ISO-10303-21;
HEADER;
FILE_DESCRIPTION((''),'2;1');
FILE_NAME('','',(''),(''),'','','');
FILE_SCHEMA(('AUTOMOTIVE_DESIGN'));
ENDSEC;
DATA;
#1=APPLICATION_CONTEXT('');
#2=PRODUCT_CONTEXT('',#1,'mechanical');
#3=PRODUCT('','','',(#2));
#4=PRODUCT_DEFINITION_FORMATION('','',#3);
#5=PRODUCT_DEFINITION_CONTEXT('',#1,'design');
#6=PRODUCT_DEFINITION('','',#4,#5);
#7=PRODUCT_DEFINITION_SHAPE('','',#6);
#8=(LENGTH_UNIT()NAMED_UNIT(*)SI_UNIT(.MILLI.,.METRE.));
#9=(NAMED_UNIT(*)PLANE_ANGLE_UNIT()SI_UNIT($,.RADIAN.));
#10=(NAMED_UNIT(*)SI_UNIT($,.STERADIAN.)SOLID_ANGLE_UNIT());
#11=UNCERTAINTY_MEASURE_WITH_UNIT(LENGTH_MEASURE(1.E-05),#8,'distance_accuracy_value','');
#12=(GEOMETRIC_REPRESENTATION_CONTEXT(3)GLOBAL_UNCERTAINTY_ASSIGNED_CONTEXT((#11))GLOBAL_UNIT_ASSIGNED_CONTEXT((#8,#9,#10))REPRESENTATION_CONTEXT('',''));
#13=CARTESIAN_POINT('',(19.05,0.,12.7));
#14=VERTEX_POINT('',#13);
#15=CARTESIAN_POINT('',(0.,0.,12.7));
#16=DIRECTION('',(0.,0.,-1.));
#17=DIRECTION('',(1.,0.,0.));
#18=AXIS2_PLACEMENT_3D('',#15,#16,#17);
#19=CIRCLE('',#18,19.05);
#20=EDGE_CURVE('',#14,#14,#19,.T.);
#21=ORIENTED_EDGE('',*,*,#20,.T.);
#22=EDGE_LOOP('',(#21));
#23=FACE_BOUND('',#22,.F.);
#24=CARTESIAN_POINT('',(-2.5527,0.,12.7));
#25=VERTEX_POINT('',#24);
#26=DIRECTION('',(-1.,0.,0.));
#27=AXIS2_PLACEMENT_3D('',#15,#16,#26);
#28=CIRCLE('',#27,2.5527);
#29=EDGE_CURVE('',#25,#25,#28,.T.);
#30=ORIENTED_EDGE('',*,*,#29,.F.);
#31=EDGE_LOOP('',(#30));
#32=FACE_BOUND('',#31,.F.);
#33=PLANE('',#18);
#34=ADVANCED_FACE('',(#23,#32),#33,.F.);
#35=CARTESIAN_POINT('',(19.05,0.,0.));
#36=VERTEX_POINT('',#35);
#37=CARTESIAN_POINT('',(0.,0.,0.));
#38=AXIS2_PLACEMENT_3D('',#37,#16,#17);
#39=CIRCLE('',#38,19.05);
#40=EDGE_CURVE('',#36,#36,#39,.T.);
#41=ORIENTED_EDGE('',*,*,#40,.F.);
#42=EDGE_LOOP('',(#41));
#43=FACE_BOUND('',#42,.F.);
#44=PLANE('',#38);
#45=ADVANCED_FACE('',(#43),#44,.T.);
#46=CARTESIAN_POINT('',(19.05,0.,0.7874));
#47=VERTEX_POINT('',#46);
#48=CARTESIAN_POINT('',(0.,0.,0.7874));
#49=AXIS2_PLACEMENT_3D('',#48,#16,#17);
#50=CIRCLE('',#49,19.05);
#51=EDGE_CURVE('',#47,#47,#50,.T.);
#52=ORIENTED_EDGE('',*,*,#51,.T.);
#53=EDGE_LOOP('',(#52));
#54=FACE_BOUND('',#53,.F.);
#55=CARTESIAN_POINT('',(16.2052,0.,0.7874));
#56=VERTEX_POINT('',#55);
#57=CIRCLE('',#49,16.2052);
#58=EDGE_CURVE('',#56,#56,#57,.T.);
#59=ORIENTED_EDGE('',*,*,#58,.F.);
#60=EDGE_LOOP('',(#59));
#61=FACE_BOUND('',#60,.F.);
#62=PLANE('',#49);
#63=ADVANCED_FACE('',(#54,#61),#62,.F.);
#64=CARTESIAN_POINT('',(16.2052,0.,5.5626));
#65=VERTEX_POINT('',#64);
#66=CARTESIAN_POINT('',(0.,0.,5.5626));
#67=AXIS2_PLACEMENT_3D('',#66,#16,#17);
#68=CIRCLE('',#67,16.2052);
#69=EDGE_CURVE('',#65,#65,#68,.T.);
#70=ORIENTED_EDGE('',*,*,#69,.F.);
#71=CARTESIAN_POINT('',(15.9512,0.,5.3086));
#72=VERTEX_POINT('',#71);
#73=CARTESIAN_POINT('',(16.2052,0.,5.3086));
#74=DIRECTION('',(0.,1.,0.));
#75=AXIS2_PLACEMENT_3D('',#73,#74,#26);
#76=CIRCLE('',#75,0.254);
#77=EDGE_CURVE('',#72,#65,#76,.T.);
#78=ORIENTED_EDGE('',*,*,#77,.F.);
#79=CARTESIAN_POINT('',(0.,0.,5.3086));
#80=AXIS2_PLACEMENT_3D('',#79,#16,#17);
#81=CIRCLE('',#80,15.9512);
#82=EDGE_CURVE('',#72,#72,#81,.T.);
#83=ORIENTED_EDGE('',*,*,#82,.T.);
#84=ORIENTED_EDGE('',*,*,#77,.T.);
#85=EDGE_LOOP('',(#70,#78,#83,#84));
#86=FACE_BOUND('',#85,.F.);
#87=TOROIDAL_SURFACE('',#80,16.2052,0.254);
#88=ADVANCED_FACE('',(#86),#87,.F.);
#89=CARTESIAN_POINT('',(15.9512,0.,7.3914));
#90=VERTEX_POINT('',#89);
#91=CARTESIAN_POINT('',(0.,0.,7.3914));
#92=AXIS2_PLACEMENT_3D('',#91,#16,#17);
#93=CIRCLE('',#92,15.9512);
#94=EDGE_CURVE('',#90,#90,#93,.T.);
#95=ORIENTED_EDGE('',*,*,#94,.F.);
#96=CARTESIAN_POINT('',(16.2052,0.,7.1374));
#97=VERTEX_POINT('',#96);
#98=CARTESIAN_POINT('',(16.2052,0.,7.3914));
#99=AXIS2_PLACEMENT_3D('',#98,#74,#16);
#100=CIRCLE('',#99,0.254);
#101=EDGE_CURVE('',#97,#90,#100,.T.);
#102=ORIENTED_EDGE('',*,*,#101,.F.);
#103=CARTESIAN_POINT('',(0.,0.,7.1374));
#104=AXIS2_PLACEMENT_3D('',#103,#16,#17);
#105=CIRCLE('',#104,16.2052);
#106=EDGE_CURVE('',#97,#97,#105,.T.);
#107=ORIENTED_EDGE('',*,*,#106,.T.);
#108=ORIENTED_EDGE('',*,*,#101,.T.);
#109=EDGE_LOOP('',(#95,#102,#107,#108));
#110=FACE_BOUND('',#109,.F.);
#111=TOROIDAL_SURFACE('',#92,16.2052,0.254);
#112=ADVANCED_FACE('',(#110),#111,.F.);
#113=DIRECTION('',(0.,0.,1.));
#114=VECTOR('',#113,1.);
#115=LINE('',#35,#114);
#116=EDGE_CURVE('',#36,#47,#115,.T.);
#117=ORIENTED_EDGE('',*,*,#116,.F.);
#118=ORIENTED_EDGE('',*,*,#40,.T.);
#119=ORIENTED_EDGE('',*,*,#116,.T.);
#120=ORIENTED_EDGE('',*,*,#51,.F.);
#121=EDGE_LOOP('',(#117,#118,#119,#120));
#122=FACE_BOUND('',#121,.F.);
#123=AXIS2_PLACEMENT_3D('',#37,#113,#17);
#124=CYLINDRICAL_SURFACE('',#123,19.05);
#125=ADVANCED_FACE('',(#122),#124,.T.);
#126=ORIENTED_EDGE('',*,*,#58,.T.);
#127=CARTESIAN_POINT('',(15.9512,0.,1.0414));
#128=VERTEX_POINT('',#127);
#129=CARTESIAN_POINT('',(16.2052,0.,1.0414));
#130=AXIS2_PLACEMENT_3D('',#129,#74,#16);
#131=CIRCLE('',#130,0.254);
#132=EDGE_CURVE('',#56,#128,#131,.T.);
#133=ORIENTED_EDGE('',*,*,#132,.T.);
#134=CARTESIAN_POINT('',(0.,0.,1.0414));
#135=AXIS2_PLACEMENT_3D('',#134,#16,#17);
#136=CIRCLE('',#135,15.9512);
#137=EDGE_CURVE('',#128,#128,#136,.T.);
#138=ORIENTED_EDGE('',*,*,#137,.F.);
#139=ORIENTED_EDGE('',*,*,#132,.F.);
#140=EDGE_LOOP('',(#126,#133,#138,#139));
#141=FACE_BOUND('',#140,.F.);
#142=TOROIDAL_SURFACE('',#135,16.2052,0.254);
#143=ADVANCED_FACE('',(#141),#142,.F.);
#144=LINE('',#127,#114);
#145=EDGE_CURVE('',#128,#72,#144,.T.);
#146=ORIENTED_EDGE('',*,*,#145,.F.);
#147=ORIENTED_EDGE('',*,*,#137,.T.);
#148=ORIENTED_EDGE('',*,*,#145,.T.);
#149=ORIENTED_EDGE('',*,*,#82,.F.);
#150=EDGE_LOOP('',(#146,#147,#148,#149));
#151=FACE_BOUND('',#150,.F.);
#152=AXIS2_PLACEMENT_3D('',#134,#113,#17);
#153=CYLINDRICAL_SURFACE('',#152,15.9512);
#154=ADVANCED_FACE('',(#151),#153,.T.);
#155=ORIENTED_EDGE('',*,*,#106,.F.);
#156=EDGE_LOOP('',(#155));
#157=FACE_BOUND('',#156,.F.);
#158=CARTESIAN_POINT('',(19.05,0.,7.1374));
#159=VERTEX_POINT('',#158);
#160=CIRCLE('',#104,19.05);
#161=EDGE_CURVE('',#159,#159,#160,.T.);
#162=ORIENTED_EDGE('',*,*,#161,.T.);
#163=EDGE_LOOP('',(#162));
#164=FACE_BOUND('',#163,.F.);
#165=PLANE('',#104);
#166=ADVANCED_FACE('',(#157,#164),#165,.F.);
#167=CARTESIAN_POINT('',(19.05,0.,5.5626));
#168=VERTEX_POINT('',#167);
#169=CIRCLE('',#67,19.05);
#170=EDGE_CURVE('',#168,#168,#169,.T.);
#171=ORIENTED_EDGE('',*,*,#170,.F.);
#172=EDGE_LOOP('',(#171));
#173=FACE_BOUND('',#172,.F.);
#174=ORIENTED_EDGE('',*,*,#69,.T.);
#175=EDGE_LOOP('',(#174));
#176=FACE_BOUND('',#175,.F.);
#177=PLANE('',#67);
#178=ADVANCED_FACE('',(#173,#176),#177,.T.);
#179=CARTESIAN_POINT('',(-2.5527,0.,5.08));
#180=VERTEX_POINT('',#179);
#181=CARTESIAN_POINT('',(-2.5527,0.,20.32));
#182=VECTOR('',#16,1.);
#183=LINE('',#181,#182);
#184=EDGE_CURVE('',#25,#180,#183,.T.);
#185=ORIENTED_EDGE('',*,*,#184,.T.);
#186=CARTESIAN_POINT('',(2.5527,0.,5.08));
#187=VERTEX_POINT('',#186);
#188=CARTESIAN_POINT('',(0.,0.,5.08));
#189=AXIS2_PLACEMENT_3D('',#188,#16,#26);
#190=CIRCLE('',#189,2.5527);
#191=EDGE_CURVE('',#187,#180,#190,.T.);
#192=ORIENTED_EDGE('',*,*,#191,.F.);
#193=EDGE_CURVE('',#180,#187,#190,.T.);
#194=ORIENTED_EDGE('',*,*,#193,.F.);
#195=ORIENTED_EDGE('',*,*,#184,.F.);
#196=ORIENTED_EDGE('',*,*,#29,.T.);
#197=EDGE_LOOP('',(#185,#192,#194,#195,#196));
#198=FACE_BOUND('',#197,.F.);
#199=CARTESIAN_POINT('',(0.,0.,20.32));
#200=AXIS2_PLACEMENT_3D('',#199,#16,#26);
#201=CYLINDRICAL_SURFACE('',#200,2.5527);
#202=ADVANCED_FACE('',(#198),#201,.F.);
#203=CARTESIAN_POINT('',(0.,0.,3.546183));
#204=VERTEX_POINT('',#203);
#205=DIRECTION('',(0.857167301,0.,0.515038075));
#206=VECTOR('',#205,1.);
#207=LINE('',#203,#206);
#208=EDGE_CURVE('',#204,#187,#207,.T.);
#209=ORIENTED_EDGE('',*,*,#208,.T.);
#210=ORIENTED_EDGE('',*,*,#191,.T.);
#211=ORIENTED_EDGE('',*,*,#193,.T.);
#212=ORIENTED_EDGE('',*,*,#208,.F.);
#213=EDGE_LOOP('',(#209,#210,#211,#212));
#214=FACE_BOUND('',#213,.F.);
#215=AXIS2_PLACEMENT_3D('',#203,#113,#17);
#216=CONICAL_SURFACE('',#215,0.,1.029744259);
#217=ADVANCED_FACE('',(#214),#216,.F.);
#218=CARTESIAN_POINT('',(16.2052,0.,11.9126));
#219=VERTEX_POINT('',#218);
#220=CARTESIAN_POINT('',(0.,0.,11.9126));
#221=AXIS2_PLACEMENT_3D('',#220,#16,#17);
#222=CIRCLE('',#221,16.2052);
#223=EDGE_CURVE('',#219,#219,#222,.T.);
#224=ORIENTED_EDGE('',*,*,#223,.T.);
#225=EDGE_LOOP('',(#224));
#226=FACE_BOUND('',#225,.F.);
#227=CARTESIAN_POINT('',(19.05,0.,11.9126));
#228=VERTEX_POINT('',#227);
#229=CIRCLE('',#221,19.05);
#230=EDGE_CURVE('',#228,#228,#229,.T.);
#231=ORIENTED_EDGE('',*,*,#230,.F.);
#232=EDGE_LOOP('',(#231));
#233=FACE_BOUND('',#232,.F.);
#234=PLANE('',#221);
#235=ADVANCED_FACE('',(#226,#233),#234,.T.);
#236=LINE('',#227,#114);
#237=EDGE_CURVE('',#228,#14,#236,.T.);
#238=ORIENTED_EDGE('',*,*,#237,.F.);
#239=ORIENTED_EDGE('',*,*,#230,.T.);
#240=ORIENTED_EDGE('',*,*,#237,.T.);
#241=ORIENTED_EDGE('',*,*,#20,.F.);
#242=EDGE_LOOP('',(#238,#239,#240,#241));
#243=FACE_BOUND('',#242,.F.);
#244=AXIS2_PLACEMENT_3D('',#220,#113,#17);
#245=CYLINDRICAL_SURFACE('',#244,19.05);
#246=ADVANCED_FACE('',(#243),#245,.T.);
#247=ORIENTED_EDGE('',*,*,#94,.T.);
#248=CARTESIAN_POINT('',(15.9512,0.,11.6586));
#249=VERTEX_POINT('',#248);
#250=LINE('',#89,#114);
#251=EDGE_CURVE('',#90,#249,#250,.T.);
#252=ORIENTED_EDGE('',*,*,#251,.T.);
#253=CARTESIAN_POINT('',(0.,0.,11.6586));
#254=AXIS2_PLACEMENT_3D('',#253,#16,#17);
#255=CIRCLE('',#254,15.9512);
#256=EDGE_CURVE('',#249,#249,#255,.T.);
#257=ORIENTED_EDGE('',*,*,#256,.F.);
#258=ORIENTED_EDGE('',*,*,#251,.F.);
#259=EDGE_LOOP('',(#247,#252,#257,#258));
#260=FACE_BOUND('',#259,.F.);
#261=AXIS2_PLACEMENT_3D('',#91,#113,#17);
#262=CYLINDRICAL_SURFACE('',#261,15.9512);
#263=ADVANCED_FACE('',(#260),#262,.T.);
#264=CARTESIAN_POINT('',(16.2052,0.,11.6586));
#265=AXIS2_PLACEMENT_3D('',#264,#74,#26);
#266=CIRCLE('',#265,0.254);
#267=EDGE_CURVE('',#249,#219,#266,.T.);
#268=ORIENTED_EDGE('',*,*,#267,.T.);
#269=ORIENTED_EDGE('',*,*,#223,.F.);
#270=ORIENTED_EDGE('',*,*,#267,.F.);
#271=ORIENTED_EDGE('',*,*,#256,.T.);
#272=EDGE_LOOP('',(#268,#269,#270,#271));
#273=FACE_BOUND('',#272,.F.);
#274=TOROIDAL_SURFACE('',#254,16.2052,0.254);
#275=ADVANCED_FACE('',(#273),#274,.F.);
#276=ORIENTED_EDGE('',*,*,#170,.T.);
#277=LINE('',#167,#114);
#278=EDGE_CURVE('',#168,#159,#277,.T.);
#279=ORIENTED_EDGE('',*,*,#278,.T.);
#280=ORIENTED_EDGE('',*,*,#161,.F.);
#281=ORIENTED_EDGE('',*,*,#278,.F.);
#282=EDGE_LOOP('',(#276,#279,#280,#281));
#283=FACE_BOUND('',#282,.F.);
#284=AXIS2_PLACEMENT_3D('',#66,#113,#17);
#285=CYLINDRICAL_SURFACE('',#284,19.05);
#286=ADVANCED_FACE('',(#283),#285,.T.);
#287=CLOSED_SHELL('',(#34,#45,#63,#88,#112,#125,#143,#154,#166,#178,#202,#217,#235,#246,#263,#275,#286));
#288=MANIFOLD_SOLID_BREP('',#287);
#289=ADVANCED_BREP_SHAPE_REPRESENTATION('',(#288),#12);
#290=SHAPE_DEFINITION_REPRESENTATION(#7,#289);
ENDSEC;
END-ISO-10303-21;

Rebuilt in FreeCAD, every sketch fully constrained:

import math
import FreeCAD as App
import Part
import Sketcher
from FreeCAD import Vector
Q = App.Units.Quantity

doc = App.newDocument("Part")
body = doc.addObject("PartDesign::Body", "Body")

# Sketch on XZ plane
sketch1 = body.newObject("Sketcher::SketchObject", "Sketch")
sketch1.AttachmentSupport = (doc.getObject("XZ_Plane"), [""])
sketch1.MapMode = "FlatFace"
sketch1.addGeometry([
    Part.LineSegment(Vector(19.05, 12.7, 0), Vector(0, 12.7, 0)),  # 0
    Part.LineSegment(Vector(0, 12.7, 0), Vector(0, 0, 0)),  # 1
    Part.LineSegment(Vector(0, 0, 0), Vector(19.05, 0, 0)),  # 2
    Part.LineSegment(Vector(19.05, 0, 0), Vector(19.05, 0.79, 0)),  # 3
    Part.LineSegment(Vector(19.05, 0.79, 0), Vector(16.21, 0.79, 0)),  # 4
    Part.ArcOfCircle(Part.Circle(Vector(16.21, 1.04, 0), Vector(0, 0, 1), 0.25), math.radians(180), math.radians(270)),  # 5
    Part.LineSegment(Vector(15.95, 1.04, 0), Vector(15.95, 5.31, 0)),  # 6
    Part.ArcOfCircle(Part.Circle(Vector(16.21, 5.31, 0), Vector(0, 0, 1), 0.25), math.radians(90), math.radians(180)),  # 7
    Part.LineSegment(Vector(16.21, 5.56, 0), Vector(19.05, 5.56, 0)),  # 8
    Part.LineSegment(Vector(19.05, 5.56, 0), Vector(19.05, 7.14, 0)),  # 9
    Part.LineSegment(Vector(19.05, 7.14, 0), Vector(16.21, 7.14, 0)),  # 10
    Part.ArcOfCircle(Part.Circle(Vector(16.21, 7.39, 0), Vector(0, 0, 1), 0.25), math.radians(180), math.radians(270)),  # 11
    Part.LineSegment(Vector(15.95, 7.39, 0), Vector(15.95, 11.66, 0)),  # 12
    Part.ArcOfCircle(Part.Circle(Vector(16.21, 11.66, 0), Vector(0, 0, 1), 0.25), math.radians(90), math.radians(180)),  # 13
    Part.LineSegment(Vector(16.21, 11.91, 0), Vector(19.05, 11.91, 0)),  # 14
    Part.LineSegment(Vector(19.05, 11.91, 0), Vector(19.05, 12.7, 0)),  # 15
], False)
sketch1.addConstraint([
    Sketcher.Constraint("Coincident", 0, 2, 1, 1),
    Sketcher.Constraint("Coincident", 1, 2, 2, 1),
    Sketcher.Constraint("Coincident", 2, 2, 3, 1),
    Sketcher.Constraint("Coincident", 3, 2, 4, 1),
    Sketcher.Constraint("Tangent", 4, 2, 5, 2),
    Sketcher.Constraint("Tangent", 5, 1, 6, 1),
    Sketcher.Constraint("Tangent", 6, 2, 7, 2),
    Sketcher.Constraint("Tangent", 7, 1, 8, 1),
    Sketcher.Constraint("Coincident", 8, 2, 9, 1),
    Sketcher.Constraint("Coincident", 9, 2, 10, 1),
    Sketcher.Constraint("Tangent", 10, 2, 11, 2),
    Sketcher.Constraint("Tangent", 11, 1, 12, 1),
    Sketcher.Constraint("Tangent", 12, 2, 13, 2),
    Sketcher.Constraint("Tangent", 13, 1, 14, 1),
    Sketcher.Constraint("Coincident", 14, 2, 15, 1),
    Sketcher.Constraint("Coincident", 15, 2, 0, 1),
    Sketcher.Constraint("Horizontal", 0),
    Sketcher.Constraint("Vertical", 1),
    Sketcher.Constraint("Horizontal", 2),
    Sketcher.Constraint("Vertical", 3),
    Sketcher.Constraint("Horizontal", 4),
    Sketcher.Constraint("Vertical", 6),
    Sketcher.Constraint("Horizontal", 8),
    Sketcher.Constraint("Vertical", 9),
    Sketcher.Constraint("Horizontal", 10),
    Sketcher.Constraint("Vertical", 12),
    Sketcher.Constraint("Horizontal", 14),
    Sketcher.Constraint("Vertical", 15),
    Sketcher.Constraint("Coincident", 1, 2, -1, 1),
    Sketcher.Constraint("Equal", 5, 7),
    Sketcher.Constraint("Equal", 7, 11),
    Sketcher.Constraint("Equal", 11, 13),
    Sketcher.Constraint("Vertical", 7, 3, 11, 3),
    Sketcher.Constraint("Vertical", 3, 2, 8, 2),
    Sketcher.Constraint("Vertical", 9, 2, 14, 2),
    Sketcher.Constraint("Equal", 6, 12),
    Sketcher.Constraint("Equal", 3, 15),
    Sketcher.Constraint("Radius", 5, Q("0.01 in")),
    Sketcher.Constraint("DistanceY", 1, 2, 1, 1, Q("0.5 in")),
    Sketcher.Constraint("DistanceX", 0, 2, 0, 1, Q("0.75 in")),
    Sketcher.Constraint("DistanceX", 4, 2, 4, 1, Q("0.112 in")),
    Sketcher.Constraint("DistanceY", 3, 1, 3, 2, Q("0.031 in")),
    Sketcher.Constraint("DistanceY", 6, 1, 6, 2, Q("0.168 in")),
])
revolution = body.newObject("PartDesign::Revolution", "Revolution")
revolution.Profile = sketch1
revolution.ReferenceAxis = (sketch1, ["V_Axis"])
revolution.Angle = 360

# Sketch on XY plane
sketch2 = body.newObject("Sketcher::SketchObject", "Sketch001")
sketch2.AttachmentSupport = (doc.getObject("XY_Plane"), [""])
sketch2.MapMode = "FlatFace"
sketch2.AttachmentOffset = App.Placement(Vector(0, 0, 0.5 * 25.4), App.Rotation())
sketch2.addGeometry(Part.Circle(Vector(0, 0, 0), Vector(0, 0, 1), 2.6), False)
sketch2.addConstraint([
    Sketcher.Constraint("Coincident", 0, 3, -1, 1),
    Sketcher.Constraint("Diameter", 0, Q("0.201 in")),
])
doc.recompute()
hole = body.newObject("PartDesign::Hole", "Hole")
hole.Profile = sketch2
hole.ThreadType = "None"
hole.Diameter = Q("0.201 in")
hole.DepthType = "Dimension"
hole.Depth = Q("0.3 in")
hole.DrillPoint = "Angled"
hole.DrillPointAngle = 118

doc.recompute()
